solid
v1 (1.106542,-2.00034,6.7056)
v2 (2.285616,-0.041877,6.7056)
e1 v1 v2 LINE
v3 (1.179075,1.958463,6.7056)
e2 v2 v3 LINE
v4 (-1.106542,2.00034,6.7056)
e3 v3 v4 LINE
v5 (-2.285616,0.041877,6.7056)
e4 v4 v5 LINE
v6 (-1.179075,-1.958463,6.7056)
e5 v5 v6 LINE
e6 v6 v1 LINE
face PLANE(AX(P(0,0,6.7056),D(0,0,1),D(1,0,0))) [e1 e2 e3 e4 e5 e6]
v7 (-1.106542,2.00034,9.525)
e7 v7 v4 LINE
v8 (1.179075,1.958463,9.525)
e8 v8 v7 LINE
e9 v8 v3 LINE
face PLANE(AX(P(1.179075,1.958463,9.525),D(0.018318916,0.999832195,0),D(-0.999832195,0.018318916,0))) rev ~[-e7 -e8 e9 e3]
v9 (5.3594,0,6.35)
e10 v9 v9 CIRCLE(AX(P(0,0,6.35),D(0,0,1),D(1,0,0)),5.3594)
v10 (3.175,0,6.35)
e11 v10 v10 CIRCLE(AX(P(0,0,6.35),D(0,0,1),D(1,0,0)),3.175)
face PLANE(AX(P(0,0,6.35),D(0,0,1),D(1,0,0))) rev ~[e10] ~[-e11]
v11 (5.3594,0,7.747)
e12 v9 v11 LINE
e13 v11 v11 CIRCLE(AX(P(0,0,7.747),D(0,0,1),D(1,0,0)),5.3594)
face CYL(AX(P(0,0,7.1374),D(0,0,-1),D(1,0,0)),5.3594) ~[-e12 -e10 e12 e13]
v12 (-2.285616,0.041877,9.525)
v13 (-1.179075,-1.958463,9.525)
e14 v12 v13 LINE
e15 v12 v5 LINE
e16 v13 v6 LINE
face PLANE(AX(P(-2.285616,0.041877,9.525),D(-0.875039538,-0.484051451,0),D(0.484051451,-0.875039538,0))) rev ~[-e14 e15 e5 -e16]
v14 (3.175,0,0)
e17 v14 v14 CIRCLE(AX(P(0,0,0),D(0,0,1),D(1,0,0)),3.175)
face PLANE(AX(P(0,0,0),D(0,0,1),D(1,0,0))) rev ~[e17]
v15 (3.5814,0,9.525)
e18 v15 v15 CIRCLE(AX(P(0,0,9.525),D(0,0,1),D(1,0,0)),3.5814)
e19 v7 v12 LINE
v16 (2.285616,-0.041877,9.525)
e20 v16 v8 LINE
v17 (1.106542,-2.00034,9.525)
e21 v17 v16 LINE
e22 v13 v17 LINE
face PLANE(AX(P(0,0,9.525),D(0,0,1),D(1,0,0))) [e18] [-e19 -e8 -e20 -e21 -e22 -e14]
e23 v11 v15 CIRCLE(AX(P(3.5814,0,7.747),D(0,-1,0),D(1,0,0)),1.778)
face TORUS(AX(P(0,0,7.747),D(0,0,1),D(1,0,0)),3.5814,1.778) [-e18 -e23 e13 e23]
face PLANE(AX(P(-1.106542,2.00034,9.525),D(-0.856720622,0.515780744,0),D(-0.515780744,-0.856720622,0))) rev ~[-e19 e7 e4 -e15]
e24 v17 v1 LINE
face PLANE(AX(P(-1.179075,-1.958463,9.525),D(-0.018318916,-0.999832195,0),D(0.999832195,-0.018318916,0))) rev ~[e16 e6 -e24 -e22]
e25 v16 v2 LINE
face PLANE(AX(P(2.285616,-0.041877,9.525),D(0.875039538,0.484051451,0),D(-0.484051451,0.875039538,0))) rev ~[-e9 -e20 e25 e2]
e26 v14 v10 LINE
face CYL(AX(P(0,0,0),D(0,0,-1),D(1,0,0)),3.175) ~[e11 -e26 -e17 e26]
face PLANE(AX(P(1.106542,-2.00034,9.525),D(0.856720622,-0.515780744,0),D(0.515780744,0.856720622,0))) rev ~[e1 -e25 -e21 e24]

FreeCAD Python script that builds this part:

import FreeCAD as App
import Part
import Sketcher

V = App.Vector
Q = App.Units.Quantity


def edges_at(feature, points):
    """Names of the edges that pass closest to the given points."""
    edges = feature.Shape.Edges
    near = lambda p: min(range(len(edges)), key=lambda i: edges[i].distToShape(Part.Vertex(*p))[0])
    return sorted({f"Edge{near(p) + 1}" for p in points})


def add_polygon(sketch, points):
    """Adds a closed chain of lines whose ends are joined by coincident constraints."""
    first, n = sketch.GeometryCount, len(points)
    for a, b in zip(points, points[1:] + points[:1]):
        sketch.addGeometry(Part.LineSegment(App.Vector(*a, 0), App.Vector(*b, 0)), False)
    for i in range(n):
        sketch.addConstraint(Sketcher.Constraint("Coincident", first + i, 2, first + (i + 1) % n, 1))

doc = App.newDocument("Part")
body = doc.addObject("PartDesign::Body", "Body")

sketch1 = body.newObject("Sketcher::SketchObject", "Sketch")
sketch1.AttachmentSupport = (doc.getObject("XY_Plane"), [""])
sketch1.MapMode = "FlatFace"
sketch1.addGeometry(Part.Circle(V(0, 0, 0), V(0, 0, 1), 3.2), False)
sketch1.addConstraint([
    Sketcher.Constraint("Coincident", 0, 3, -1, 1),
    Sketcher.Constraint("Diameter", 0, Q("0.25 in")),
])
pad1 = body.newObject("PartDesign::Pad", "Pad")
pad1.Profile = sketch1
pad1.Length = Q("0.25 in")

sketch2 = body.newObject("Sketcher::SketchObject", "Sketch001")
sketch2.AttachmentSupport = (doc.getObject("XY_Plane"), [""])
sketch2.MapMode = "FlatFace"
sketch2.AttachmentOffset = App.Placement(V(0, 0, 0.25 * 25.4), App.Rotation())
sketch2.addGeometry(Part.Circle(V(0, 0, 0), V(0, 0, 1), 5), False)
sketch2.addConstraint([
    Sketcher.Constraint("Coincident", 0, 3, -1, 1),
    Sketcher.Constraint("Diameter", 0, Q("0.422 in")),
])
pad2 = body.newObject("PartDesign::Pad", "Pad001")
pad2.Profile = sketch2
pad2.Length = Q("0.031 in")

sketch3 = body.newObject("Sketcher::SketchObject", "Sketch002")
sketch3.AttachmentSupport = (doc.getObject("XY_Plane"), [""])
sketch3.MapMode = "FlatFace"
sketch3.AttachmentOffset = App.Placement(V(0, 0, 0.281 * 25.4), App.Rotation())
sketch3.addGeometry(Part.Circle(V(0, 0, 0), V(0, 0, 1), 5), False)
sketch3.addConstraint([
    Sketcher.Constraint("Coincident", 0, 3, -1, 1),
    Sketcher.Constraint("Diameter", 0, Q("0.422 in")),
])
pad3 = body.newObject("PartDesign::Pad", "Pad002")
pad3.Profile = sketch3
pad3.Length = Q("0.094 in")
doc.recompute()

fillet = body.newObject("PartDesign::Fillet", "Fillet")
fillet.Base = (pad3, edges_at(pad3, [(-5.359, 0, 9.525)]))
fillet.Radius = Q("0.07 in")

sketch4 = body.newObject("Sketcher::SketchObject", "Sketch003")
sketch4.AttachmentSupport = (doc.getObject("XY_Plane"), [""])
sketch4.MapMode = "FlatFace"
sketch4.AttachmentOffset = App.Placement(V(0, 0, 0.375 * 25.4), App.Rotation())
add_polygon(sketch4, [(1.1, -2), (2.3, 0), (1.2, 2), (-1.1, 2), (-2.3, 0), (-1.2, -2)])
sketch4.addConstraint([
    Sketcher.Constraint("Symmetric", 0, 2, 3, 2, -1, 1),
    Sketcher.Constraint("Symmetric", 1, 2, 4, 2, -1, 1),
    Sketcher.Constraint("Symmetric", 2, 2, 5, 2, -1, 1),
    Sketcher.Constraint("Equal", 0, 1),
    Sketcher.Constraint("Equal", 1, 2),
    Sketcher.Constraint("Distance", 0, Q("0.09 in")),
    Sketcher.Constraint("DistanceX", 2, 2, -1, 1, 1.106542),
    Sketcher.Constraint("DistanceY", -1, 1, 2, 2, 2.00034),
    Sketcher.Constraint("DistanceX", 1, 2, 0, 2, 1.106542),
])
pocket1 = body.newObject("PartDesign::Pocket", "Pocket")
pocket1.Profile = sketch4
pocket1.Length = Q("0.111 in")

doc.recompute()
